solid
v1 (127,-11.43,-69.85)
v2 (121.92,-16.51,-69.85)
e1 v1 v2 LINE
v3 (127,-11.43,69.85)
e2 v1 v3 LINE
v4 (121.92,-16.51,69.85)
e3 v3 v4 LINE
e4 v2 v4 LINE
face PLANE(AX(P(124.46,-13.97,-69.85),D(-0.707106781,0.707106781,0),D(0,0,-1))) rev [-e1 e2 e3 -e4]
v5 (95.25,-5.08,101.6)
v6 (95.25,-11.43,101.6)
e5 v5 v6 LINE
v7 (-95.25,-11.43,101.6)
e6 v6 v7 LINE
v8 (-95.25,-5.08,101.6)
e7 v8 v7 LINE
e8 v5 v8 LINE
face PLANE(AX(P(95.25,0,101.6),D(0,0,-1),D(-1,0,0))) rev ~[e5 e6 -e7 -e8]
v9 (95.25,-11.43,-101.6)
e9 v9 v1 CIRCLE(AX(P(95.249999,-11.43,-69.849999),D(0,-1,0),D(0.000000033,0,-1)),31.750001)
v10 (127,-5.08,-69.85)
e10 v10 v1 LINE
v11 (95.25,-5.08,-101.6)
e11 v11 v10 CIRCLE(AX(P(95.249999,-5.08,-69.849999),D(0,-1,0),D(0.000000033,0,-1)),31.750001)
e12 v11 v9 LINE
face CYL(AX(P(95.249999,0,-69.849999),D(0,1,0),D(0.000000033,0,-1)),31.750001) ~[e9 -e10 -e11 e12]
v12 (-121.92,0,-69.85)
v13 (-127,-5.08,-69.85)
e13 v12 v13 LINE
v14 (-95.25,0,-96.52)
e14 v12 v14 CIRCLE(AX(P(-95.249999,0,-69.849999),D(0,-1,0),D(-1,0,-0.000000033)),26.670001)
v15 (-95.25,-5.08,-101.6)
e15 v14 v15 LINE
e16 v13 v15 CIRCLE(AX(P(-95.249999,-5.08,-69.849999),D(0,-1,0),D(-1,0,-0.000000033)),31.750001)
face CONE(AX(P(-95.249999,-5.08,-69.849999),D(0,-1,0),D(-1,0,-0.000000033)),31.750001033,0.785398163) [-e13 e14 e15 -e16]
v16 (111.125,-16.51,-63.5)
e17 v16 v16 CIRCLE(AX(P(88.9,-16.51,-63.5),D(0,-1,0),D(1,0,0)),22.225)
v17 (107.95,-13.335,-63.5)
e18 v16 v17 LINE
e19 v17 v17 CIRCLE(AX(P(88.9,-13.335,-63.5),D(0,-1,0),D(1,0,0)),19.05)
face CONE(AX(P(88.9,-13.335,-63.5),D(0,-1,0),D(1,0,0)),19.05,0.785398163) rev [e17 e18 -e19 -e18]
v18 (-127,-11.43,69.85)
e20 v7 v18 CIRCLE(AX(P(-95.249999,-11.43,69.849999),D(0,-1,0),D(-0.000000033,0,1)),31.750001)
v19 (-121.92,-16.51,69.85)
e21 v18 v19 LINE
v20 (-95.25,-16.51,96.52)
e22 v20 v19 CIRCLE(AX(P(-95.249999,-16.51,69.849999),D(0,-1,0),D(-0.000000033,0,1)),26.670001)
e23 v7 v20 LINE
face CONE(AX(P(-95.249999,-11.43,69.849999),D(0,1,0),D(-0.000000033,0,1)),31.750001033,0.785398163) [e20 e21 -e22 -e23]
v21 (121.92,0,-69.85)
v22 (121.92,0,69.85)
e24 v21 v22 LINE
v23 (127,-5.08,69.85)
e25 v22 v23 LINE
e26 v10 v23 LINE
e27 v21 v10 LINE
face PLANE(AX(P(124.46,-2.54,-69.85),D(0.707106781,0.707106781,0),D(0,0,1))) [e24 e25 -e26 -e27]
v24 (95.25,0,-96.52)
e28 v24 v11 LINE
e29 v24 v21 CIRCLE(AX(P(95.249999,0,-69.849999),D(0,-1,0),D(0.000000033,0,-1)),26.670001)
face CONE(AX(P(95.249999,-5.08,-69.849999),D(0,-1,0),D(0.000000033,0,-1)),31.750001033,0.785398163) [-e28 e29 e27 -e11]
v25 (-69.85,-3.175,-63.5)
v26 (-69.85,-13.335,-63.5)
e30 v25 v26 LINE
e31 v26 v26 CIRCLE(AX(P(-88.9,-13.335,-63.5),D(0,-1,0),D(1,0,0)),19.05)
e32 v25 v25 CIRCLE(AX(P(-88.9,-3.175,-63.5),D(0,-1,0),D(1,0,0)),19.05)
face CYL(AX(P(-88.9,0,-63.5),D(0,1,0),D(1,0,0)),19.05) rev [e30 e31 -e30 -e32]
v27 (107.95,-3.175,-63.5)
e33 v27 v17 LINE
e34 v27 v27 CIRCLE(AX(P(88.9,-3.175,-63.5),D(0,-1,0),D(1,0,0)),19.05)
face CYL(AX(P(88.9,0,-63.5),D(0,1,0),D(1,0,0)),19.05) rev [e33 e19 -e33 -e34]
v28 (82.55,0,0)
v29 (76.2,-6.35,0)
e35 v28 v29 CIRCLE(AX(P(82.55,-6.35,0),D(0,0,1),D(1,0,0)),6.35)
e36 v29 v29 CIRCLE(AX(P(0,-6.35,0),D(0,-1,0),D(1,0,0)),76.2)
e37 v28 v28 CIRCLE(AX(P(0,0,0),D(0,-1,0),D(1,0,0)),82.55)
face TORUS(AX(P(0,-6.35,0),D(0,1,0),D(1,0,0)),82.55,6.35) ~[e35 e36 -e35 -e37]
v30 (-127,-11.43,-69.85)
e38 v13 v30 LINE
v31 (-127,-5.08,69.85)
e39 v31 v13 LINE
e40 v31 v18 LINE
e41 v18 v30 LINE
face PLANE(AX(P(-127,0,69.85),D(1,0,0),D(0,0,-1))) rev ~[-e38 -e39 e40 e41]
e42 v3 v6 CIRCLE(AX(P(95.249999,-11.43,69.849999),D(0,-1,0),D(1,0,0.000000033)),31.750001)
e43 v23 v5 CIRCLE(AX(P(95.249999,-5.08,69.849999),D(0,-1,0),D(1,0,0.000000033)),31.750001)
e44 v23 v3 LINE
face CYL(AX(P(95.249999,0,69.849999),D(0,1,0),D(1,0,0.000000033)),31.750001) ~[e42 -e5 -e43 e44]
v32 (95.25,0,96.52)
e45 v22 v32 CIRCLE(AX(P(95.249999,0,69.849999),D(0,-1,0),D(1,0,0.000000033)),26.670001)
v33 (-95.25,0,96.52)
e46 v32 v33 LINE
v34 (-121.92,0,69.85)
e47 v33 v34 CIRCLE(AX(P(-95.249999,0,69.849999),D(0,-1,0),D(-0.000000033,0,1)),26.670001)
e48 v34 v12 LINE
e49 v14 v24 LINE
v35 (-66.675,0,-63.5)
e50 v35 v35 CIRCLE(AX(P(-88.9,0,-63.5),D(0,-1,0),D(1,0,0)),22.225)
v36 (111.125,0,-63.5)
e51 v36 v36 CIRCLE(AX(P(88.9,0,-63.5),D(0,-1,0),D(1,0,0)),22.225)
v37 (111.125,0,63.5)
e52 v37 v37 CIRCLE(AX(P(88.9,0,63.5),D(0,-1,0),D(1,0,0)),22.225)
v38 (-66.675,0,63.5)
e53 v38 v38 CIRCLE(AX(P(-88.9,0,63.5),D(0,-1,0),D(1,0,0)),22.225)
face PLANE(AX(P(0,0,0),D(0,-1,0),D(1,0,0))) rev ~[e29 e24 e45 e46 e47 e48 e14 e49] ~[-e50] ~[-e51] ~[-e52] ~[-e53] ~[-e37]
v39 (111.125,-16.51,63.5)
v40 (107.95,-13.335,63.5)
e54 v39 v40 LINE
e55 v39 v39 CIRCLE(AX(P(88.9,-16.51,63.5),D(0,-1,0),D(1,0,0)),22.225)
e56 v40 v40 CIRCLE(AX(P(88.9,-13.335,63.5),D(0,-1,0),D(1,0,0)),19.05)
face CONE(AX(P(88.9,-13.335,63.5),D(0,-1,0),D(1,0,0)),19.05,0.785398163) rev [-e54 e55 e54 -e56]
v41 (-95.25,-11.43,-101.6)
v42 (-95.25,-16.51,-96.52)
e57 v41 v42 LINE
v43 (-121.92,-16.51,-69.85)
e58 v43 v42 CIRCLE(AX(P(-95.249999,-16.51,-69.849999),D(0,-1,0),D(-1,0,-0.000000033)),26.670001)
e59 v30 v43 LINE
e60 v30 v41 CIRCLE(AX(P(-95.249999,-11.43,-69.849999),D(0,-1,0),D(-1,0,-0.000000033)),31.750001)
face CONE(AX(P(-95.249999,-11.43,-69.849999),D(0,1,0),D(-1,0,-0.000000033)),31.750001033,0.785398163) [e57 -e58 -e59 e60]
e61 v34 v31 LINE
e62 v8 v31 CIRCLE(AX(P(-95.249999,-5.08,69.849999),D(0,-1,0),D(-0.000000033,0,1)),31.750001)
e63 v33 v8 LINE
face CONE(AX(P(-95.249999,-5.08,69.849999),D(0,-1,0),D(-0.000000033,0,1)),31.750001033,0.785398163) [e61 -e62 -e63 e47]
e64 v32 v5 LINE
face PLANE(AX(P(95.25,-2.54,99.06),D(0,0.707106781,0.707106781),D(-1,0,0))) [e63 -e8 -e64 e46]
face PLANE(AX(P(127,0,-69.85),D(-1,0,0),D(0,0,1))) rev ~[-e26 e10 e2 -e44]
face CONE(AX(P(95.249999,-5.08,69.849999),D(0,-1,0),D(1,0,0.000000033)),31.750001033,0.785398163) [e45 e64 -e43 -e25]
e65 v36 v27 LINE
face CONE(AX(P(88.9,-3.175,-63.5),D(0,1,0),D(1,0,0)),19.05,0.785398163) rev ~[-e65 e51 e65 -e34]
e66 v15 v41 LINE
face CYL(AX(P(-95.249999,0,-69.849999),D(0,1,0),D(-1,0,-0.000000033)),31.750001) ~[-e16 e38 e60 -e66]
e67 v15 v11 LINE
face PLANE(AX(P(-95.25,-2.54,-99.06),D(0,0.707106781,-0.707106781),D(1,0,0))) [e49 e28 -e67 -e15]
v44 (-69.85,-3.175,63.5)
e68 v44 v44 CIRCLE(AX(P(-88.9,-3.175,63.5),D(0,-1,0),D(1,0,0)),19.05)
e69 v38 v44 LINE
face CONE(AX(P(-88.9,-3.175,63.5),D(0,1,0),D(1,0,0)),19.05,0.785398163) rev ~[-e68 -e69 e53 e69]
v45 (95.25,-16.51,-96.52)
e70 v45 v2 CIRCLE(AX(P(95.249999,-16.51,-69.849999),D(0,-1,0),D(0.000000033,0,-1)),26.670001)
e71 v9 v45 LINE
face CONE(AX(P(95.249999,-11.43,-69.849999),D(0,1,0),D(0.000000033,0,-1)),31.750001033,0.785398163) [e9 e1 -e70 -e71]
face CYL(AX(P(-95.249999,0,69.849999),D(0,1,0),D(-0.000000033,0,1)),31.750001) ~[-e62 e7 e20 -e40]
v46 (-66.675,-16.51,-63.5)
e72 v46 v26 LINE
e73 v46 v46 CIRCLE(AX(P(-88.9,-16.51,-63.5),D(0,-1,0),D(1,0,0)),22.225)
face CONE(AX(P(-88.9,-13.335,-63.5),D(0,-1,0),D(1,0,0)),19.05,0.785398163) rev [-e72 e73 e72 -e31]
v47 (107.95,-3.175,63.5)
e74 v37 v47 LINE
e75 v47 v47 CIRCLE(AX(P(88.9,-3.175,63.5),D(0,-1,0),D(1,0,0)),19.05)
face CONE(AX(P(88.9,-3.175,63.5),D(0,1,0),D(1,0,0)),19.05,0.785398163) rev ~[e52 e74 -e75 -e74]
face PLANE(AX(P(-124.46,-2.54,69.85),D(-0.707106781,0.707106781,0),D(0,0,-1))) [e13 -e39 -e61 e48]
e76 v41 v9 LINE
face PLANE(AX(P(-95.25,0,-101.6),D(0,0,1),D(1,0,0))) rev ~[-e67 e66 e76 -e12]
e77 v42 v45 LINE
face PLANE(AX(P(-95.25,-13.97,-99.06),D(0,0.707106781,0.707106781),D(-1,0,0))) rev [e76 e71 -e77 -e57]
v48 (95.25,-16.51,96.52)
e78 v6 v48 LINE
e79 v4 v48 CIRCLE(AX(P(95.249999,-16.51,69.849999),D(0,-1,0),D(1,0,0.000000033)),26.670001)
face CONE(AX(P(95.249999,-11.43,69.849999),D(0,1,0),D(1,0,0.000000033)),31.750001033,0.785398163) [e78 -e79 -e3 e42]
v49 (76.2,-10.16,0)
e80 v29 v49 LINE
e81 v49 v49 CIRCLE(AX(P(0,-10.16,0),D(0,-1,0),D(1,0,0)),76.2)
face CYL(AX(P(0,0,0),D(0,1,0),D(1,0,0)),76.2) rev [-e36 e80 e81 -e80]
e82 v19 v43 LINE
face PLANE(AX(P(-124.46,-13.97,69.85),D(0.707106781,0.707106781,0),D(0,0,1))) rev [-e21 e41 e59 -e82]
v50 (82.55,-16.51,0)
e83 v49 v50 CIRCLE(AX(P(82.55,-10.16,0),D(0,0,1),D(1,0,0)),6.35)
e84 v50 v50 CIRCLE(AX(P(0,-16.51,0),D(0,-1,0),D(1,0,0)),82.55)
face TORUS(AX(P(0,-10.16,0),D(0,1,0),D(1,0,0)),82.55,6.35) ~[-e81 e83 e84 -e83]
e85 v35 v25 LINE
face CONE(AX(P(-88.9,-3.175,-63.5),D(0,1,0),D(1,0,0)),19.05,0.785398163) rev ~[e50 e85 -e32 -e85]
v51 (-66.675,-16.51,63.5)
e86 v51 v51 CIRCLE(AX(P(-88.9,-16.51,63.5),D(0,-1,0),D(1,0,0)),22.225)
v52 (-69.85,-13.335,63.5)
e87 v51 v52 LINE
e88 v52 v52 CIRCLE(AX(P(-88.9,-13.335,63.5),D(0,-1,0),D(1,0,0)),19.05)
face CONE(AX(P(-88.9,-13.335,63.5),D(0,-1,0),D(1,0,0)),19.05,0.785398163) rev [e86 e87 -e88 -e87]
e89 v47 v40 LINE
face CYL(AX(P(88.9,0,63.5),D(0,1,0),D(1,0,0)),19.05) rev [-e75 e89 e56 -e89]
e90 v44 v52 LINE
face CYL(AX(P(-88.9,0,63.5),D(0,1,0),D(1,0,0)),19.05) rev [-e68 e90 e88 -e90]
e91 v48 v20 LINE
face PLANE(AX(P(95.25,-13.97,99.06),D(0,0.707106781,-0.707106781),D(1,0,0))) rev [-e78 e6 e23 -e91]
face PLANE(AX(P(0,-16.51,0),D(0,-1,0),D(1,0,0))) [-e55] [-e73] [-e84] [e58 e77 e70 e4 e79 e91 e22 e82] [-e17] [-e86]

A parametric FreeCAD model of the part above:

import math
import FreeCAD as App
import Part
import Sketcher

V = App.Vector
Q = App.Units.Quantity


def edges_at(feature, points):
    """Names of the edges that pass closest to the given points."""
    edges = feature.Shape.Edges
    near = lambda p: min(range(len(edges)), key=lambda i: edges[i].distToShape(Part.Vertex(*p))[0])
    return sorted({f"Edge{near(p) + 1}" for p in points})

doc = App.newDocument("Part")
body = doc.addObject("PartDesign::Body", "Body")

# Sketch on XZ plane
sketch1 = body.newObject("Sketcher::SketchObject", "Sketch")
sketch1.AttachmentSupport = (doc.getObject("XZ_Plane"), [""])
sketch1.MapMode = "FlatFace"
sketch1.addGeometry([
    Part.LineSegment(V(95.25, 101.6, 0), V(-95.25, 101.6, 0)),  # 0
    Part.ArcOfCircle(Part.Circle(V(-95.249999, 69.849999, 0), V(0, 0, 1), 31.750001), math.radians(90.000002), math.radians(179.999998)),  # 1
    Part.LineSegment(V(-127, 69.85, 0), V(-127, -69.85, 0)),  # 2
    Part.ArcOfCircle(Part.Circle(V(-95.249999, -69.849999, 0), V(0, 0, 1), 31.750001), math.radians(-179.999998), math.radians(-90.000002)),  # 3
    Part.LineSegment(V(-95.25, -101.6, 0), V(95.25, -101.6, 0)),  # 4
    Part.ArcOfCircle(Part.Circle(V(95.249999, -69.849999, 0), V(0, 0, 1), 31.750001), math.radians(-89.999998), math.radians(-0.000002)),  # 5
    Part.LineSegment(V(127, -69.85, 0), V(127, 69.85, 0)),  # 6
    Part.ArcOfCircle(Part.Circle(V(95.249999, 69.849999, 0), V(0, 0, 1), 31.750001), math.radians(0.000002), math.radians(89.999998)),  # 7
    Part.Circle(V(-88.9, -63.5, 0), V(0, 0, 1), 19.05),  # 8
    Part.Circle(V(88.9, -63.5, 0), V(0, 0, 1), 19.05),  # 9
    Part.Circle(V(-88.9, 63.5, 0), V(0, 0, 1), 19.05),  # 10
    Part.Circle(V(0, 0, 0), V(0, 0, 1), 76.2),  # 11
    Part.Circle(V(88.9, 63.5, 0), V(0, 0, 1), 19.05),  # 12
], False)
sketch1.addConstraint([
    Sketcher.Constraint("Tangent", 0, 2, 1, 1),
    Sketcher.Constraint("Tangent", 1, 2, 2, 1),
    Sketcher.Constraint("Tangent", 2, 2, 3, 1),
    Sketcher.Constraint("Tangent", 3, 2, 4, 1),
    Sketcher.Constraint("Tangent", 4, 2, 5, 1),
    Sketcher.Constraint("Tangent", 5, 2, 6, 1),
    Sketcher.Constraint("Tangent", 6, 2, 7, 1),
    Sketcher.Constraint("Tangent", 7, 2, 0, 1),
    Sketcher.Constraint("Horizontal", 0),
    Sketcher.Constraint("Vertical", 2),
    Sketcher.Constraint("Horizontal", 4),
    Sketcher.Constraint("Vertical", 6),
    Sketcher.Constraint("Coincident", 11, 3, -1, 1),
    Sketcher.Constraint("Equal", 1, 3),
    Sketcher.Constraint("Equal", 3, 5),
    Sketcher.Constraint("Equal", 5, 7),
    Sketcher.Constraint("Equal", 8, 9),
    Sketcher.Constraint("Equal", 9, 10),
    Sketcher.Constraint("Equal", 10, 12),
    Sketcher.Constraint("Symmetric", 1, 3, 5, 3, -1, 1),
    Sketcher.Constraint("Symmetric", 9, 3, 10, 3, -1, 1),
    Sketcher.Constraint("Symmetric", 8, 3, 12, 3, -1, 1),
    Sketcher.Constraint("Symmetric", 8, 3, 9, 3, -2),
    Sketcher.Constraint("Diameter", 11, Q("6 in")),
    Sketcher.Constraint("Diameter", 8, Q("1.5 in")),
    Sketcher.Constraint("Radius", 1, Q("1.25 in")),
    Sketcher.Constraint("DistanceX", 0, 2, 0, 1, Q("7.5 in")),
    Sketcher.Constraint("DistanceY", 2, 2, 2, 1, Q("5.5 in")),
    Sketcher.Constraint("DistanceX", 8, 3, 9, 3, Q("7 in")),
    Sketcher.Constraint("DistanceY", 8, 3, 10, 3, Q("5 in")),
])
pad1 = body.newObject("PartDesign::Pad", "Pad")
pad1.Profile = sketch1
pad1.Length = Q("0.65 in")
doc.recompute()

chamfer = body.newObject("PartDesign::Chamfer", "Chamfer")
chamfer.Base = (pad1, edges_at(pad1, [(0, -16.51, 101.6), (-117.701, -16.51, 92.301)]))
chamfer.Size = Q("0.2 in")
doc.recompute()

chamfer2 = body.newObject("PartDesign::Chamfer", "Chamfer001")
chamfer2.Base = (chamfer, edges_at(chamfer, [(127, 0, 0)]))
chamfer2.Size = Q("0.2 in")
doc.recompute()

chamfer3 = body.newObject("PartDesign::Chamfer", "Chamfer002")
chamfer3.Base = (chamfer2, edges_at(chamfer2, [
    (-107.95, -16.51, 63.5),
    (69.85, -16.51, 63.5),
    (69.85, -16.51, -63.5),
    (-107.95, -16.51, -63.5),
    (-107.95, 0, 63.5),
    (69.85, 0, 63.5),
    (69.85, 0, -63.5),
    (-107.95, 0, -63.5),
]))
chamfer3.Size = Q("0.125 in")
doc.recompute()

fillet = body.newObject("PartDesign::Fillet", "Fillet")
fillet.Base = (chamfer3, edges_at(chamfer3, [(-76.2, 0, 0), (-76.2, -16.51, 0)]))
fillet.Radius = Q("0.25 in")

doc.recompute()
